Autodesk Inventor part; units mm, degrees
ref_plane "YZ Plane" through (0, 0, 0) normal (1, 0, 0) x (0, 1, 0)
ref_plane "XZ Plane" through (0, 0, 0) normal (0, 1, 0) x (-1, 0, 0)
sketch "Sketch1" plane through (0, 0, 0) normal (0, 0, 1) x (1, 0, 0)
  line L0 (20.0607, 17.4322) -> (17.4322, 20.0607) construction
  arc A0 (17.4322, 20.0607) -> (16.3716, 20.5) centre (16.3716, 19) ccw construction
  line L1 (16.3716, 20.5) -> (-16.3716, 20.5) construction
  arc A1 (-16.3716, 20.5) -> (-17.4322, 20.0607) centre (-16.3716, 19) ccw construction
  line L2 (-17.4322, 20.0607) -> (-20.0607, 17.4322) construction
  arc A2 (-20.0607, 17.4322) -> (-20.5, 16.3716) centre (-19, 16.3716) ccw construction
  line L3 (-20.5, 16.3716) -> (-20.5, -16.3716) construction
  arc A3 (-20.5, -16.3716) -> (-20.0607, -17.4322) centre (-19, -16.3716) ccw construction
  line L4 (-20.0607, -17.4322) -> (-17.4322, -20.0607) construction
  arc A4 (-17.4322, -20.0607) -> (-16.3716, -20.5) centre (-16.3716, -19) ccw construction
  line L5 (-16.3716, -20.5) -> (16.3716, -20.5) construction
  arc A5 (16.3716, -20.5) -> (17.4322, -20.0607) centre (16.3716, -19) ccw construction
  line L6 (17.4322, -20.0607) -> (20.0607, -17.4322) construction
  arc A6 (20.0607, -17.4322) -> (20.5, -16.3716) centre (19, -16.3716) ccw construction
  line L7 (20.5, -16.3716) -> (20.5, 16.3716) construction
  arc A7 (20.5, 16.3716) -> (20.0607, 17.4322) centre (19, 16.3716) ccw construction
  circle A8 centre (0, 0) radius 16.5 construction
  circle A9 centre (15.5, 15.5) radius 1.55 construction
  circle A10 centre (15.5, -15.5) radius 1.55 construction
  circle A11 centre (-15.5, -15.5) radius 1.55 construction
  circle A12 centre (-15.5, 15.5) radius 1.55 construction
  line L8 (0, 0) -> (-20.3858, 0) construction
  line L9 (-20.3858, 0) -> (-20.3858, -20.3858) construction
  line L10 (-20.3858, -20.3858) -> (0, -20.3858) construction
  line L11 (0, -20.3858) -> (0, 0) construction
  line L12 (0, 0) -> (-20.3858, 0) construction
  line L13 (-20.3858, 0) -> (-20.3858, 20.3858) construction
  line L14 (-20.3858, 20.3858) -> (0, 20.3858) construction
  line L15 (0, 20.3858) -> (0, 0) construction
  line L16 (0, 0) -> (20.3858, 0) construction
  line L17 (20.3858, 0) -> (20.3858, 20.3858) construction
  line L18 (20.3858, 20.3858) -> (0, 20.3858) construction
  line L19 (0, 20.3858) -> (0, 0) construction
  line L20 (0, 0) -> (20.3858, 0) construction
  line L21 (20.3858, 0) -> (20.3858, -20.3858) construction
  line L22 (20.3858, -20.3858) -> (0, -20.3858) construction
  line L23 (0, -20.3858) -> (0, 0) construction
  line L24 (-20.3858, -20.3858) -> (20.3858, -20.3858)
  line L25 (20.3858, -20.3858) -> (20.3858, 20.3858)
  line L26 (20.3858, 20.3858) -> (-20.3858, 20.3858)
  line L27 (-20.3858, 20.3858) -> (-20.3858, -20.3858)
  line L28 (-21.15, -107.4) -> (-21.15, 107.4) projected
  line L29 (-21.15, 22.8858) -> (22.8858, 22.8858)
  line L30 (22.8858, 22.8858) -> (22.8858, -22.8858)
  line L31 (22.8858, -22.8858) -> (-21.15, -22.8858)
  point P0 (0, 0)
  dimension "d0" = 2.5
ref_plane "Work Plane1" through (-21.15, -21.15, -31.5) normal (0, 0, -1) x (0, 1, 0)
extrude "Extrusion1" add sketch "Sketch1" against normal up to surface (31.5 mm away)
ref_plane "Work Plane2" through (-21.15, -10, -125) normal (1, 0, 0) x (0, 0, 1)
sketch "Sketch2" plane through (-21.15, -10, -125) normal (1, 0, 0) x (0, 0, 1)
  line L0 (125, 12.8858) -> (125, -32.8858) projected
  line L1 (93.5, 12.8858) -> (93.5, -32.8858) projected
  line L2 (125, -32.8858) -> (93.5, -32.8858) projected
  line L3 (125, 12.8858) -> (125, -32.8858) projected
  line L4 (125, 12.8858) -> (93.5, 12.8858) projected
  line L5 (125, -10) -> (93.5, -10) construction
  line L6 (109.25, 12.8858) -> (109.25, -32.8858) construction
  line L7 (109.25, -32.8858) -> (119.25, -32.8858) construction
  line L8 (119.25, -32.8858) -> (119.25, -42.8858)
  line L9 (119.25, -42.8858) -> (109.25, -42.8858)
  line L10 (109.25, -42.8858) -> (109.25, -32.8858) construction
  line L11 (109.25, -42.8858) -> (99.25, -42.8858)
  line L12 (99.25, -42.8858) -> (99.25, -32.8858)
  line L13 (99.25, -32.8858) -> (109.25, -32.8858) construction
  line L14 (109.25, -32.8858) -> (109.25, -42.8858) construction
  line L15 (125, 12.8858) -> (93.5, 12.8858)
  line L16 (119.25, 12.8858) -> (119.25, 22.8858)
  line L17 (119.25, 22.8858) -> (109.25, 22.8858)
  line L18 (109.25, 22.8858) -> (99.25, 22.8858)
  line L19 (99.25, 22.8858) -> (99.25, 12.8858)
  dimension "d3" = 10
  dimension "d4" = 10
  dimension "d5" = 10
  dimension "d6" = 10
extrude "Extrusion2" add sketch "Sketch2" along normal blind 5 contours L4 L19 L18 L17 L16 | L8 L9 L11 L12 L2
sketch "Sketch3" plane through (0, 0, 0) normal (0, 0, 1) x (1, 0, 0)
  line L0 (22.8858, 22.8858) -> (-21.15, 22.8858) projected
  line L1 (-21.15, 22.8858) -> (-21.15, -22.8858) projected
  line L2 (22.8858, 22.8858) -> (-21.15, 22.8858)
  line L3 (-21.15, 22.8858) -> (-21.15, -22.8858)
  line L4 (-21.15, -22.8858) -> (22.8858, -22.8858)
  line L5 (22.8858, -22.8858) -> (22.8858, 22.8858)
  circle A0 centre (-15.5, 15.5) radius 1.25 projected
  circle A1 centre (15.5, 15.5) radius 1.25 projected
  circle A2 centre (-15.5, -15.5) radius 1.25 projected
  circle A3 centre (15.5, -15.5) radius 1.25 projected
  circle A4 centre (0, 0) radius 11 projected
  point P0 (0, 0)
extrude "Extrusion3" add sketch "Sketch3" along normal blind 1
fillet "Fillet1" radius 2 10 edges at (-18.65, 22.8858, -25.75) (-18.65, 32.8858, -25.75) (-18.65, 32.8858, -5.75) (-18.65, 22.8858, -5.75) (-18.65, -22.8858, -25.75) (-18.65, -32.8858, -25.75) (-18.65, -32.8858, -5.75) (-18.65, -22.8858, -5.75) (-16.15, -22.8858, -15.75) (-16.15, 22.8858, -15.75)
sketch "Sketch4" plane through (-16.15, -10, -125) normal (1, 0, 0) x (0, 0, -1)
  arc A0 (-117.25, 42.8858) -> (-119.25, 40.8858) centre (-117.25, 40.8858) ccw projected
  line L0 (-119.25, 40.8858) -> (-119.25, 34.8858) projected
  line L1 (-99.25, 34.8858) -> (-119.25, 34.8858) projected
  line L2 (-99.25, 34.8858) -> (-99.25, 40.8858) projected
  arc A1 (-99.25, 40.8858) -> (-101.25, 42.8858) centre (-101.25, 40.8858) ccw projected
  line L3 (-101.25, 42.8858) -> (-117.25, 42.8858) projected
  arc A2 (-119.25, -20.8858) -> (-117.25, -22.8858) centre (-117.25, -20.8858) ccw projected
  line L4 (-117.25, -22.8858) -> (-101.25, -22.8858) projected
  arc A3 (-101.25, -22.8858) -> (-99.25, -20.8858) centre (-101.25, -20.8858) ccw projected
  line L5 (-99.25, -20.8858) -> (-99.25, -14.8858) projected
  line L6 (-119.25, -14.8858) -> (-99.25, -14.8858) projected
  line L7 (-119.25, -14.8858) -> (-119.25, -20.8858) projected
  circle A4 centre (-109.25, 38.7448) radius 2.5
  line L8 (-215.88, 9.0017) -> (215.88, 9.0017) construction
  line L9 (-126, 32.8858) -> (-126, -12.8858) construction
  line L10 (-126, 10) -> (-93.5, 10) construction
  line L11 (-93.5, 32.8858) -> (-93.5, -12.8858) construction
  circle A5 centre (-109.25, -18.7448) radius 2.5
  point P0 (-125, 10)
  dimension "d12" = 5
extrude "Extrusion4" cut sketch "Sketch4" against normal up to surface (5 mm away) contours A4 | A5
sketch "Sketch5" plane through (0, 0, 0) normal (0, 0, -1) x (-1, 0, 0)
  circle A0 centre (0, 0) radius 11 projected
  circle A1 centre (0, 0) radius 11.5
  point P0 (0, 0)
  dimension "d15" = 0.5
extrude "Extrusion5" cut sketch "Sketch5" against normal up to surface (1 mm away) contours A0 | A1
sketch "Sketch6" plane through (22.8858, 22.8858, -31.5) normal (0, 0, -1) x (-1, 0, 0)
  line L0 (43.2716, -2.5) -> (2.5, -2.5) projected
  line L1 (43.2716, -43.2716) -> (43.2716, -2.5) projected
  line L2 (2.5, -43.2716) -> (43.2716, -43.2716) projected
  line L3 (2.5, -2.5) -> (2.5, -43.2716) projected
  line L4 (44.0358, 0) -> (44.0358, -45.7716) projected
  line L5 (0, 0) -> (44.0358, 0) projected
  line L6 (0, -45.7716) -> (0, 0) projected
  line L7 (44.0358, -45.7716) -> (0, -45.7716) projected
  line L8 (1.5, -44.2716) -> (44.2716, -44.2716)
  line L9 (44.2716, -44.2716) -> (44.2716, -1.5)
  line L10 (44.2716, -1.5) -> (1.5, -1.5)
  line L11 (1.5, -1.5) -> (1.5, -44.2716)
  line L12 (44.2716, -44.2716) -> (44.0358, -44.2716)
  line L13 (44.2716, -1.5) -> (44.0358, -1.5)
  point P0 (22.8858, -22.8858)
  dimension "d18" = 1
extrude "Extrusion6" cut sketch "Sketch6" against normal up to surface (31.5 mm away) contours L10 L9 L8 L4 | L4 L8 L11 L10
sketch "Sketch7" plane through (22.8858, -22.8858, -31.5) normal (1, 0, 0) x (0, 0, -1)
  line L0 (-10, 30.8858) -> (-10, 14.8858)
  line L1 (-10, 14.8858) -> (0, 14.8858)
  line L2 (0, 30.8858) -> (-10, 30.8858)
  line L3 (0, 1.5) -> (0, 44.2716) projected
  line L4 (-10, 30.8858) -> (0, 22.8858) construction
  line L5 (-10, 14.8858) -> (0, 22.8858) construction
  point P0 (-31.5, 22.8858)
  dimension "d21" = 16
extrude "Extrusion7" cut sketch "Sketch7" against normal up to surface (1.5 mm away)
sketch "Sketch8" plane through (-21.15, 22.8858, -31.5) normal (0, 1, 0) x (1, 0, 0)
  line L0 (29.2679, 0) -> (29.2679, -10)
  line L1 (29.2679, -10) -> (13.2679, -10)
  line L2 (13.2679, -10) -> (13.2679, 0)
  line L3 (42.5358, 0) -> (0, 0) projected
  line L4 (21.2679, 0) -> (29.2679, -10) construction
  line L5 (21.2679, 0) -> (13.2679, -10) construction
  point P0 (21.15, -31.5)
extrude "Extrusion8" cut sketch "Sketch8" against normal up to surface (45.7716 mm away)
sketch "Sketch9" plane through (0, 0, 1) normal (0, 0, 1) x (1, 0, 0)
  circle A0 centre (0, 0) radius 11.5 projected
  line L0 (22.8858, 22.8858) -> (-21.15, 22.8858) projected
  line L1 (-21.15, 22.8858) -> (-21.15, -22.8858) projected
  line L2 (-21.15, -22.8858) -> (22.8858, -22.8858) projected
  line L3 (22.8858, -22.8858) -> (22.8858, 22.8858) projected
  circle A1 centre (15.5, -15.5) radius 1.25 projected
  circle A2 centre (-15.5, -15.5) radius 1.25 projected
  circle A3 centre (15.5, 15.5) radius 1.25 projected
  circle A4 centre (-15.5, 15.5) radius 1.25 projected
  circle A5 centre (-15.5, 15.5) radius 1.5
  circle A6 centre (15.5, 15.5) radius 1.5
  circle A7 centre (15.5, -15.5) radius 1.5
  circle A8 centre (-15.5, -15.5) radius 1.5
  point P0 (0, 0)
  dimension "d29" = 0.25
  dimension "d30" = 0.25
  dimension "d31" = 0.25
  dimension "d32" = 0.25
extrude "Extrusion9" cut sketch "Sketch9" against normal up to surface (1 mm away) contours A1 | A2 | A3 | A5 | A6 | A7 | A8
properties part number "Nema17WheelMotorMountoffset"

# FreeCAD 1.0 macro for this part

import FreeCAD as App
import Part
import Sketcher

V = App.Vector


def edges_at(feature, points):
    """Names of the edges that pass closest to the given points."""
    edges = feature.Shape.Edges
    near = lambda p: min(range(len(edges)), key=lambda i: edges[i].distToShape(Part.Vertex(*p))[0])
    return sorted({f"Edge{near(p) + 1}" for p in points})

doc = App.newDocument("Part")
params = doc.addObject("Spreadsheet::Sheet", "Params")
for row, (alias, value) in enumerate([
    ("pad1_length", "31.5 mm"),
    ("sketch2_width", "10 mm"),
    ("sketch2_height", "20 mm"),
    ("pad2_length", "5 mm"),
    ("sketch3_diameter", "22 mm"),
    ("sketch3_diameter2", "2.5 mm"),
    ("pad3_length", "1 mm"),
    ("fillet_radius", "2 mm"),
    ("sketch4_diameter", "5 mm"),
    ("pocket1_length", "5 mm"),
    ("sketch5_diameter", "23 mm"),
    ("pocket2_length", "1 mm"),
    ("pocket3_length", "31.5 mm"),
    ("sketch7_width", "16 mm"),
    ("sketch7_height", "10 mm"),
    ("pocket4_length", "1.5 mm"),
    ("sketch8_width", "16 mm"),
    ("sketch8_height", "10 mm"),
    ("pocket5_length", "45.7716 mm"),
    ("sketch9_diameter", "3 mm"),
    ("sketch9_diameter2", "2.5 mm"),
    ("pocket6_length", "1 mm"),
], start=1):
    params.set(f"A{row}", alias)
    params.set(f"B{row}", "=" + value)
    params.setAlias(f"B{row}", alias)

body = doc.addObject("PartDesign::Body", "Body")

# Sketch on XY plane
sketch1 = body.newObject("Sketcher::SketchObject", "Sketch")
sketch1.AttachmentSupport = (doc.getObject("XY_Plane"), [""])
sketch1.MapMode = "FlatFace"
sketch1.addGeometry([
    Part.LineSegment(V(-21, 23, 0), V(-21, -23, 0)),  # 0
    Part.LineSegment(V(-21, -23, 0), V(23, -23, 0)),  # 1
    Part.LineSegment(V(23, -23, 0), V(23, 23, 0)),  # 2
    Part.LineSegment(V(23, 23, 0), V(-21, 23, 0)),  # 3
    Part.LineSegment(V(20, -20, 0), V(-20, -20, 0)),  # 4
    Part.LineSegment(V(-20, -20, 0), V(-20, 20, 0)),  # 5
    Part.LineSegment(V(-20, 20, 0), V(20, 20, 0)),  # 6
    Part.LineSegment(V(20, 20, 0), V(20, -20, 0)),  # 7
], False)
sketch1.addConstraint([
    Sketcher.Constraint("Coincident", 0, 2, 1, 1),
    Sketcher.Constraint("Coincident", 1, 2, 2, 1),
    Sketcher.Constraint("Coincident", 2, 2, 3, 1),
    Sketcher.Constraint("Coincident", 3, 2, 0, 1),
    Sketcher.Constraint("Coincident", 4, 2, 5, 1),
    Sketcher.Constraint("Coincident", 5, 2, 6, 1),
    Sketcher.Constraint("Coincident", 6, 2, 7, 1),
    Sketcher.Constraint("Coincident", 7, 2, 4, 1),
    Sketcher.Constraint("Vertical", 0),
    Sketcher.Constraint("Horizontal", 1),
    Sketcher.Constraint("Vertical", 2),
    Sketcher.Constraint("Horizontal", 3),
    Sketcher.Constraint("Horizontal", 4),
    Sketcher.Constraint("Vertical", 5),
    Sketcher.Constraint("Horizontal", 6),
    Sketcher.Constraint("Vertical", 7),
    Sketcher.Constraint("Symmetric", 4, 2, 6, 2, -1, 1),
    Sketcher.Constraint("Equal", 6, 5),
    Sketcher.Constraint("DistanceY", 0, 2, 4, 2, 2.5),
    Sketcher.Constraint("DistanceY", 5, 2, 3, 2, 2.5),
    Sketcher.Constraint("DistanceX", 6, 2, 2, 2, 2.5),
    Sketcher.Constraint("DistanceX", 0, 2, -1, 1, 21.15),
    Sketcher.Constraint("DistanceX", 1, 1, 1, 2, 44.0358),
])
pad1 = body.newObject("PartDesign::Pad", "Pad")
pad1.Profile = sketch1
pad1.setExpression("Length", "Params.pad1_length")
pad1.Reversed = True

# Sketch on YZ plane
sketch2 = body.newObject("Sketcher::SketchObject", "Sketch001")
sketch2.AttachmentSupport = (doc.getObject("YZ_Plane"), [""])
sketch2.MapMode = "FlatFace"
sketch2.AttachmentOffset = App.Placement(V(0, 0, -21.15), App.Rotation())
sketch2.addGeometry([
    Part.LineSegment(V(-23, -26, 0), V(-23, -6, 0)),  # 0
    Part.LineSegment(V(-23, -6, 0), V(-33, -6, 0)),  # 1
    Part.LineSegment(V(-33, -6, 0), V(-33, -26, 0)),  # 2
    Part.LineSegment(V(-33, -26, 0), V(-23, -26, 0)),  # 3
    Part.LineSegment(V(33, -6, 0), V(23, -6, 0)),  # 4
    Part.LineSegment(V(23, -6, 0), V(23, -26, 0)),  # 5
    Part.LineSegment(V(23, -26, 0), V(33, -26, 0)),  # 6
    Part.LineSegment(V(33, -26, 0), V(33, -6, 0)),  # 7
], False)
sketch2.addConstraint([
    Sketcher.Constraint("Coincident", 0, 2, 1, 1),
    Sketcher.Constraint("Coincident", 1, 2, 2, 1),
    Sketcher.Constraint("Coincident", 2, 2, 3, 1),
    Sketcher.Constraint("Coincident", 3, 2, 0, 1),
    Sketcher.Constraint("Coincident", 4, 2, 5, 1),
    Sketcher.Constraint("Coincident", 5, 2, 6, 1),
    Sketcher.Constraint("Coincident", 6, 2, 7, 1),
    Sketcher.Constraint("Coincident", 7, 2, 4, 1),
    Sketcher.Constraint("Vertical", 0),
    Sketcher.Constraint("Horizontal", 1),
    Sketcher.Constraint("Vertical", 2),
    Sketcher.Constraint("Horizontal", 3),
    Sketcher.Constraint("Horizontal", 4),
    Sketcher.Constraint("Vertical", 5),
    Sketcher.Constraint("Horizontal", 6),
    Sketcher.Constraint("Vertical", 7),
    Sketcher.Constraint("Symmetric", 0, 2, 4, 2, -2),
    Sketcher.Constraint("Symmetric", 2, 2, 6, 2, -2),
    Sketcher.Constraint("DistanceX", 1, 2, 1, 1, 10.0),
    Sketcher.Constraint("DistanceY", 0, 1, 0, 2, 20.0),
    Sketcher.Constraint("DistanceY", 0, 2, -1, 1, 5.75),
    Sketcher.Constraint("DistanceX", 0, 2, -1, 1, 22.8858),
])
sketch2.setExpression("Constraints[18]", "Params.sketch2_width")
sketch2.setExpression("Constraints[19]", "Params.sketch2_height")
pad2 = body.newObject("PartDesign::Pad", "Pad001")
pad2.Profile = sketch2
pad2.setExpression("Length", "Params.pad2_length")

# Sketch on XY plane
sketch3 = body.newObject("Sketcher::SketchObject", "Sketch002")
sketch3.AttachmentSupport = (doc.getObject("XY_Plane"), [""])
sketch3.MapMode = "FlatFace"
sketch3.addGeometry([
    Part.LineSegment(V(22.9, -22.9, 0), V(22.9, 22.9, 0)),  # 0
    Part.LineSegment(V(22.9, 22.9, 0), V(-21.1, 22.9, 0)),  # 1
    Part.LineSegment(V(-21.1, 22.9, 0), V(-21.1, -22.9, 0)),  # 2
    Part.LineSegment(V(-21.1, -22.9, 0), V(22.9, -22.9, 0)),  # 3
    Part.Circle(V(-15.5, -15.5, 0), V(0, 0, 1), 1.2),  # 4
    Part.Circle(V(0, 0, 0), V(0, 0, 1), 11),  # 5
    Part.Circle(V(15.5, -15.5, 0), V(0, 0, 1), 1.2),  # 6
    Part.Circle(V(-15.5, 15.5, 0), V(0, 0, 1), 1.2),  # 7
    Part.Circle(V(15.5, 15.5, 0), V(0, 0, 1), 1.2),  # 8
], False)
sketch3.addConstraint([
    Sketcher.Constraint("Coincident", 0, 2, 1, 1),
    Sketcher.Constraint("Coincident", 1, 2, 2, 1),
    Sketcher.Constraint("Coincident", 2, 2, 3, 1),
    Sketcher.Constraint("Coincident", 3, 2, 0, 1),
    Sketcher.Constraint("Vertical", 0),
    Sketcher.Constraint("Horizontal", 1),
    Sketcher.Constraint("Vertical", 2),
    Sketcher.Constraint("Horizontal", 3),
    Sketcher.Constraint("Coincident", 5, 3, -1, 1),
    Sketcher.Constraint("Equal", 4, 6),
    Sketcher.Constraint("Equal", 6, 7),
    Sketcher.Constraint("Equal", 7, 8),
    Sketcher.Constraint("Symmetric", 6, 3, 7, 3, -1, 1),
    Sketcher.Constraint("Symmetric", 4, 3, 8, 3, -1, 1),
    Sketcher.Constraint("Symmetric", 4, 3, 6, 3, -2),
    Sketcher.Constraint("Diameter", 5, 22.0),
    Sketcher.Constraint("Diameter", 4, 2.5),
    Sketcher.Constraint("DistanceX", 4, 3, 6, 3, 31.0),
    Sketcher.Constraint("DistanceY", 4, 3, 7, 3, 31.0),
    Sketcher.Constraint("DistanceX", 1, 2, -1, 1, 21.15),
    Sketcher.Constraint("DistanceX", 1, 2, 1, 1, 44.0358),
    Sketcher.Constraint("DistanceY", 0, 1, 0, 2, 45.7716),
    Sketcher.Constraint("DistanceY", -1, 1, 0, 2, 22.8858),
])
sketch3.setExpression("Constraints[15]", "Params.sketch3_diameter")
sketch3.setExpression("Constraints[16]", "Params.sketch3_diameter2")
pad3 = body.newObject("PartDesign::Pad", "Pad002")
pad3.Profile = sketch3
pad3.setExpression("Length", "Params.pad3_length")
doc.recompute()

fillet = body.newObject("PartDesign::Fillet", "Fillet")
fillet.Base = (pad3, edges_at(pad3, [
    (-18.65, 22.886, -25.75),
    (-18.65, 32.886, -25.75),
    (-18.65, 32.886, -5.75),
    (-18.65, 22.886, -5.75),
    (-18.65, -22.886, -25.75),
    (-18.65, -32.886, -25.75),
    (-18.65, -32.886, -5.75),
    (-18.65, -22.886, -5.75),
    (-16.15, -22.886, -15.75),
    (-16.15, 22.886, -15.75),
]))
fillet.setExpression("Radius", "Params.fillet_radius")

# Sketch on YZ plane
sketch4 = body.newObject("Sketcher::SketchObject", "Sketch003")
sketch4.AttachmentSupport = (doc.getObject("YZ_Plane"), [""])
sketch4.MapMode = "FlatFace"
sketch4.AttachmentOffset = App.Placement(V(0, 0, -16.15), App.Rotation())
sketch4.addGeometry([
    Part.Circle(V(28.7, -15.8, 0), V(0, 0, 1), 2.5),
    Part.Circle(V(-28.7, -15.8, 0), V(0, 0, 1), 2.5),
], False)
sketch4.addConstraint([
    Sketcher.Constraint("Equal", 0, 1),
    Sketcher.Constraint("Symmetric", 0, 3, 1, 3, -2),
    Sketcher.Constraint("Diameter", 0, 5.0),
    Sketcher.Constraint("DistanceY", 0, 3, -1, 1, 15.75),
    Sketcher.Constraint("DistanceX", -1, 1, 0, 3, 28.7448),
])
sketch4.setExpression("Constraints[2]", "Params.sketch4_diameter")
pocket1 = body.newObject("PartDesign::Pocket", "Pocket")
pocket1.Profile = sketch4
pocket1.setExpression("Length", "Params.pocket1_length")

# Sketch on XY plane
sketch5 = body.newObject("Sketcher::SketchObject", "Sketch004")
sketch5.AttachmentSupport = (doc.getObject("XY_Plane"), [""])
sketch5.MapMode = "FlatFace"
sketch5.addGeometry(Part.Circle(V(0, 0, 0), V(0, 0, 1), 12), False)
sketch5.addConstraint([
    Sketcher.Constraint("Coincident", 0, 3, -1, 1),
    Sketcher.Constraint("Diameter", 0, 23.0),
])
sketch5.setExpression("Constraints[1]", "Params.sketch5_diameter")
pocket2 = body.newObject("PartDesign::Pocket", "Pocket001")
pocket2.Profile = sketch5
pocket2.setExpression("Length", "Params.pocket2_length")
pocket2.Reversed = True

# Sketch on XY plane
sketch6 = body.newObject("Sketcher::SketchObject", "Sketch005")
sketch6.AttachmentSupport = (doc.getObject("XY_Plane"), [""])
sketch6.MapMode = "FlatFace"
sketch6.AttachmentOffset = App.Placement(V(0, 0, -31.5), App.Rotation())
sketch6.addGeometry([
    Part.LineSegment(V(-21, 21, 0), V(21, 21, 0)),  # 0
    Part.LineSegment(V(21, 21, 0), V(21, -21, 0)),  # 1
    Part.LineSegment(V(21, -21, 0), V(-21, -21, 0)),  # 2
    Part.LineSegment(V(-21, -21, 0), V(-21, 21, 0)),  # 3
    Part.LineSegment(V(-20, 20, 0), V(-20, -20, 0)),  # 4
    Part.LineSegment(V(-20, -20, 0), V(20, -20, 0)),  # 5
    Part.LineSegment(V(20, -20, 0), V(20, 20, 0)),  # 6
    Part.LineSegment(V(20, 20, 0), V(-20, 20, 0)),  # 7
], False)
sketch6.addConstraint([
    Sketcher.Constraint("Coincident", 0, 2, 1, 1),
    Sketcher.Constraint("Coincident", 1, 2, 2, 1),
    Sketcher.Constraint("Coincident", 2, 2, 3, 1),
    Sketcher.Constraint("Coincident", 3, 2, 0, 1),
    Sketcher.Constraint("Coincident", 4, 2, 5, 1),
    Sketcher.Constraint("Coincident", 5, 2, 6, 1),
    Sketcher.Constraint("Coincident", 6, 2, 7, 1),
    Sketcher.Constraint("Coincident", 7, 2, 4, 1),
    Sketcher.Constraint("Horizontal", 0),
    Sketcher.Constraint("Vertical", 1),
    Sketcher.Constraint("Horizontal", 2),
    Sketcher.Constraint("Vertical", 3),
    Sketcher.Constraint("Vertical", 4),
    Sketcher.Constraint("Horizontal", 5),
    Sketcher.Constraint("Vertical", 6),
    Sketcher.Constraint("Horizontal", 7),
    Sketcher.Constraint("Symmetric", 0, 2, 2, 2, -1, 1),
    Sketcher.Constraint("Symmetric", 4, 2, 6, 2, -1, 1),
    Sketcher.Constraint("Equal", 2, 1),
    Sketcher.Constraint("Equal", 7, 4),
    Sketcher.Constraint("DistanceX", 2, 2, 4, 2, 1.0),
    Sketcher.Constraint("DistanceX", 0, 1, 0, 2, 42.7716),
])
pocket3 = body.newObject("PartDesign::Pocket", "Pocket002")
pocket3.Profile = sketch6
pocket3.setExpression("Length", "Params.pocket3_length")
pocket3.Reversed = True

# Sketch on YZ plane
sketch7 = body.newObject("Sketcher::SketchObject", "Sketch006")
sketch7.AttachmentSupport = (doc.getObject("YZ_Plane"), [""])
sketch7.MapMode = "FlatFace"
sketch7.AttachmentOffset = App.Placement(V(0, 0, 22.8858), App.Rotation())
sketch7.addGeometry([
    Part.LineSegment(V(8, -32, 0), V(8, -22, 0)),
    Part.LineSegment(V(8, -22, 0), V(-8, -22, 0)),
    Part.LineSegment(V(-8, -22, 0), V(-8, -32, 0)),
    Part.LineSegment(V(-8, -32, 0), V(8, -32, 0)),
], False)
sketch7.addConstraint([
    Sketcher.Constraint("Coincident", 0, 2, 1, 1),
    Sketcher.Constraint("Coincident", 1, 2, 2, 1),
    Sketcher.Constraint("Coincident", 2, 2, 3, 1),
    Sketcher.Constraint("Coincident", 3, 2, 0, 1),
    Sketcher.Constraint("Vertical", 0),
    Sketcher.Constraint("Horizontal", 1),
    Sketcher.Constraint("Vertical", 2),
    Sketcher.Constraint("Horizontal", 3),
    Sketcher.Constraint("DistanceX", 1, 2, 1, 1, 16.0),
    Sketcher.Constraint("DistanceY", 0, 1, 0, 2, 10.0),
    Sketcher.Constraint("DistanceX", -1, 1, 0, 2, 8.0),
    Sketcher.Constraint("DistanceY", 0, 2, -1, 1, 21.5),
])
sketch7.setExpression("Constraints[8]", "Params.sketch7_width")
sketch7.setExpression("Constraints[9]", "Params.sketch7_height")
pocket4 = body.newObject("PartDesign::Pocket", "Pocket003")
pocket4.Profile = sketch7
pocket4.setExpression("Length", "Params.pocket4_length")

# Sketch on XZ plane
sketch8 = body.newObject("Sketcher::SketchObject", "Sketch007")
sketch8.AttachmentSupport = (doc.getObject("XZ_Plane"), [""])
sketch8.MapMode = "FlatFace"
sketch8.AttachmentOffset = App.Placement(V(0, 0, -22.8858), App.Rotation())
sketch8.addGeometry([
    Part.LineSegment(V(8, -22, 0), V(8, -32, 0)),
    Part.LineSegment(V(8, -32, 0), V(-8, -32, 0)),
    Part.LineSegment(V(-8, -32, 0), V(-8, -22, 0)),
    Part.LineSegment(V(-8, -22, 0), V(8, -22, 0)),
], False)
sketch8.addConstraint([
    Sketcher.Constraint("Coincident", 0, 2, 1, 1),
    Sketcher.Constraint("Coincident", 1, 2, 2, 1),
    Sketcher.Constraint("Coincident", 2, 2, 3, 1),
    Sketcher.Constraint("Coincident", 3, 2, 0, 1),
    Sketcher.Constraint("Vertical", 0),
    Sketcher.Constraint("Horizontal", 1),
    Sketcher.Constraint("Vertical", 2),
    Sketcher.Constraint("Horizontal", 3),
    Sketcher.Constraint("DistanceX", 1, 2, 1, 1, 16.0),
    Sketcher.Constraint("DistanceY", 0, 2, 0, 1, 10.0),
    Sketcher.Constraint("DistanceY", 0, 2, -1, 1, 31.5),
    Sketcher.Constraint("DistanceX", -1, 1, 0, 2, 8.118),
])
sketch8.setExpression("Constraints[8]", "Params.sketch8_width")
sketch8.setExpression("Constraints[9]", "Params.sketch8_height")
pocket5 = body.newObject("PartDesign::Pocket", "Pocket004")
pocket5.Profile = sketch8
pocket5.setExpression("Length", "Params.pocket5_length")
pocket5.Reversed = True

# Sketch on XY plane
sketch9 = body.newObject("Sketcher::SketchObject", "Sketch008")
sketch9.AttachmentSupport = (doc.getObject("XY_Plane"), [""])
sketch9.MapMode = "FlatFace"
sketch9.AttachmentOffset = App.Placement(V(0, 0, 1), App.Rotation())
sketch9.addGeometry([
    Part.Circle(V(15.5, -15.5, 0), V(0, 0, 1), 1.5),  # 0
    Part.Circle(V(-15.5, -15.5, 0), V(0, 0, 1), 1.5),  # 1
    Part.Circle(V(15.5, 15.5, 0), V(0, 0, 1), 1.5),  # 2
    Part.Circle(V(-15.5, 15.5, 0), V(0, 0, 1), 1.5),  # 3
    Part.Circle(V(-15.5, 15.5, 0), V(0, 0, 1), 1.2),  # 4
], False)
sketch9.addConstraint([
    Sketcher.Constraint("Coincident", 4, 3, 3, 3),
    Sketcher.Constraint("Equal", 0, 1),
    Sketcher.Constraint("Equal", 1, 2),
    Sketcher.Constraint("Equal", 2, 3),
    Sketcher.Constraint("Symmetric", 1, 3, 2, 3, -1, 1),
    Sketcher.Constraint("Symmetric", 0, 3, 3, 3, -1, 1),
    Sketcher.Constraint("Symmetric", 0, 3, 1, 3, -2),
    Sketcher.Constraint("Diameter", 0, 3.0),
    Sketcher.Constraint("Diameter", 4, 2.5),
    Sketcher.Constraint("DistanceX", 1, 3, 0, 3, 31.0),
    Sketcher.Constraint("DistanceY", 0, 3, 2, 3, 31.0),
])
sketch9.setExpression("Constraints[7]", "Params.sketch9_diameter")
sketch9.setExpression("Constraints[8]", "Params.sketch9_diameter2")
pocket6 = body.newObject("PartDesign::Pocket", "Pocket005")
pocket6.Profile = sketch9
pocket6.setExpression("Length", "Params.pocket6_length")

doc.recompute()
